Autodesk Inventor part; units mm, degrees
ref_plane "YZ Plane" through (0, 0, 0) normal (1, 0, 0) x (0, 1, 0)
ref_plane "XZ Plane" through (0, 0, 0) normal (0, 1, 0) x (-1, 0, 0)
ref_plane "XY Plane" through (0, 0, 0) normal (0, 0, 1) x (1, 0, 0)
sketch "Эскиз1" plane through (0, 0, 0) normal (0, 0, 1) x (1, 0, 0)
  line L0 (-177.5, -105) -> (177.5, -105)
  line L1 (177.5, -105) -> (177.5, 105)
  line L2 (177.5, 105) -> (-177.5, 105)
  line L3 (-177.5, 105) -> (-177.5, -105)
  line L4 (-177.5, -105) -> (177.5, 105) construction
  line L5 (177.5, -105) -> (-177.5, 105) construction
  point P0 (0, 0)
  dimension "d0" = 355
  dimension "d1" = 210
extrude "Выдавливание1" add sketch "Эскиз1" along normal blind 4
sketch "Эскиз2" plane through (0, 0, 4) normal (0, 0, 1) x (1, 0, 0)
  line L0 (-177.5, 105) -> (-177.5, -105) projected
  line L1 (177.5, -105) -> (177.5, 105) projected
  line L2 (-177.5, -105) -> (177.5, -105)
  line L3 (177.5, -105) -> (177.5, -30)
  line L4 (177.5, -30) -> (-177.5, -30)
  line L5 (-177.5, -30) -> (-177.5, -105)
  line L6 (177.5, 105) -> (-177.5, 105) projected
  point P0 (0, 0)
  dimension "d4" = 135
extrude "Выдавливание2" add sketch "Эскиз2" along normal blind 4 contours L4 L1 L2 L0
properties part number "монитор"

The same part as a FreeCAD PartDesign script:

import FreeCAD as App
import Part
import Sketcher
from FreeCAD import Vector
Q = App.Units.Quantity

doc = App.newDocument("Part")
body = doc.addObject("PartDesign::Body", "Body")

# Sketch on XY plane
sketch1 = body.newObject("Sketcher::SketchObject", "Sketch")
sketch1.AttachmentSupport = (doc.getObject("XY_Plane"), [""])
sketch1.MapMode = "FlatFace"
sketch1.addGeometry([
    Part.LineSegment(Vector(-178, 105, 0), Vector(-178, -105, 0)),
    Part.LineSegment(Vector(-178, -105, 0), Vector(178, -105, 0)),
    Part.LineSegment(Vector(178, -105, 0), Vector(178, 105, 0)),
    Part.LineSegment(Vector(178, 105, 0), Vector(-178, 105, 0)),
], False)
sketch1.addConstraint([
    Sketcher.Constraint("Coincident", 0, 2, 1, 1),
    Sketcher.Constraint("Coincident", 1, 2, 2, 1),
    Sketcher.Constraint("Coincident", 2, 2, 3, 1),
    Sketcher.Constraint("Coincident", 3, 2, 0, 1),
    Sketcher.Constraint("Vertical", 0),
    Sketcher.Constraint("Horizontal", 1),
    Sketcher.Constraint("Vertical", 2),
    Sketcher.Constraint("Horizontal", 3),
    Sketcher.Constraint("Symmetric", 0, 2, 2, 2, -1, 1),
    Sketcher.Constraint("DistanceX", 1, 1, 1, 2, Q("355 mm")),
    Sketcher.Constraint("DistanceY", 0, 2, 0, 1, Q("210 mm")),
])
pad1 = body.newObject("PartDesign::Pad", "Pad")
pad1.Profile = sketch1
pad1.Length = 4

# Sketch on XY plane
sketch2 = body.newObject("Sketcher::SketchObject", "Sketch001")
sketch2.AttachmentSupport = (doc.getObject("XY_Plane"), [""])
sketch2.MapMode = "FlatFace"
sketch2.AttachmentOffset = App.Placement(Vector(0, 0, 4), App.Rotation())
sketch2.addGeometry([
    Part.LineSegment(Vector(178, -30, 0), Vector(-178, -30, 0)),
    Part.LineSegment(Vector(-178, -30, 0), Vector(-178, -105, 0)),
    Part.LineSegment(Vector(-178, -105, 0), Vector(178, -105, 0)),
    Part.LineSegment(Vector(178, -105, 0), Vector(178, -30, 0)),
], False)
sketch2.addConstraint([
    Sketcher.Constraint("Coincident", 0, 2, 1, 1),
    Sketcher.Constraint("Coincident", 1, 2, 2, 1),
    Sketcher.Constraint("Coincident", 2, 2, 3, 1),
    Sketcher.Constraint("Coincident", 3, 2, 0, 1),
    Sketcher.Constraint("Horizontal", 0),
    Sketcher.Constraint("Vertical", 1),
    Sketcher.Constraint("Horizontal", 2),
    Sketcher.Constraint("Vertical", 3),
    Sketcher.Constraint("DistanceX", 0, 2, 0, 1, Q("355 mm")),
    Sketcher.Constraint("DistanceY", 1, 2, 1, 1, Q("75 mm")),
    Sketcher.Constraint("DistanceY", 0, 2, -1, 1, Q("30 mm")),
    Sketcher.Constraint("DistanceX", 0, 2, -1, 1, Q("177.5 mm")),
])
pad2 = body.newObject("PartDesign::Pad", "Pad001")
pad2.Profile = sketch2
pad2.Length = 4

doc.recompute()
